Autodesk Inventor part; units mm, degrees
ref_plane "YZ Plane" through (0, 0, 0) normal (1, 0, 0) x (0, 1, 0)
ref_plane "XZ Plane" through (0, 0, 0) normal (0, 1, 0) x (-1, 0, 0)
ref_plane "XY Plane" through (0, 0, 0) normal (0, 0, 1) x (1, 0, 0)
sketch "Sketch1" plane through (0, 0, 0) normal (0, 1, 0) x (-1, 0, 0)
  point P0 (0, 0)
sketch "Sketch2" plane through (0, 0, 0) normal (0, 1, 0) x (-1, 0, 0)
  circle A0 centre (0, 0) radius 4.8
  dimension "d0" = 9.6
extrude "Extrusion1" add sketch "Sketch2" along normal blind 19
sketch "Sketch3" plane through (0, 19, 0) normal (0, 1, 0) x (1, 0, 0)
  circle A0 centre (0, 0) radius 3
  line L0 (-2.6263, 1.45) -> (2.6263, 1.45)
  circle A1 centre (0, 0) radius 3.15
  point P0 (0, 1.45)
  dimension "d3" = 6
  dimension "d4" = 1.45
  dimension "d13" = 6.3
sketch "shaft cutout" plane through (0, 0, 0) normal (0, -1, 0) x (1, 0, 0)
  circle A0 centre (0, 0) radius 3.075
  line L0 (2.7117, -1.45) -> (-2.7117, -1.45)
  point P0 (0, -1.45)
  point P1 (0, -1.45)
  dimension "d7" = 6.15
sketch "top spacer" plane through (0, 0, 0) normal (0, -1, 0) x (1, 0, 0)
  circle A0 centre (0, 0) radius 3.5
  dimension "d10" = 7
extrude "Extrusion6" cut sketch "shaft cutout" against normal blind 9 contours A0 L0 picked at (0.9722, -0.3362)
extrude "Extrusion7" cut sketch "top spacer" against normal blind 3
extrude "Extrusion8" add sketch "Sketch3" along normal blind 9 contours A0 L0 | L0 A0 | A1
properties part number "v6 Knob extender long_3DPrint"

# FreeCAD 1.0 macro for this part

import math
import FreeCAD as App
import Part
import Sketcher

V = App.Vector
Q = App.Units.Quantity

doc = App.newDocument("Part")
body = doc.addObject("PartDesign::Body", "Body")

# Sketch on XZ plane
sketch1 = body.newObject("Sketcher::SketchObject", "Sketch")
sketch1.AttachmentSupport = (doc.getObject("XZ_Plane"), [""])
sketch1.MapMode = "FlatFace"
sketch1.addGeometry(Part.Circle(V(0, 0, 0), V(0, 0, 1), 4.8), False)
sketch1.addConstraint(Sketcher.Constraint("Coincident", 0, 3, -1, 1))
sketch1.addConstraint(Sketcher.Constraint("Diameter", 0, Q("9.6 mm")))
pad1 = body.newObject("PartDesign::Pad", "Pad")
pad1.Profile = sketch1
pad1.Length = 19
pad1.Reversed = True

# Sketch on XZ plane
sketch2 = body.newObject("Sketcher::SketchObject", "Sketch001")
sketch2.AttachmentSupport = (doc.getObject("XZ_Plane"), [""])
sketch2.MapMode = "FlatFace"
sketch2.addGeometry(Part.ArcOfCircle(Part.Circle(V(0, 0, 0), V(0, 0, 1), 3.1), math.radians(-28), math.radians(208)), False)
sketch2.addGeometry(Part.LineSegment(V(2.7, -1.4, 0), V(-2.7, -1.4, 0)), False)
sketch2.addConstraint(Sketcher.Constraint("Coincident", 0, 1, 1, 1))
sketch2.addConstraint(Sketcher.Constraint("Coincident", 1, 2, 0, 2))
sketch2.addConstraint(Sketcher.Constraint("Horizontal", 1))
sketch2.addConstraint(Sketcher.Constraint("Coincident", 0, 3, -1, 1))
sketch2.addConstraint(Sketcher.Constraint("Radius", 0, Q("3.075 mm")))
sketch2.addConstraint(Sketcher.Constraint("DistanceY", 0, 1, -1, 1, Q("1.45 mm")))
pocket1 = body.newObject("PartDesign::Pocket", "Pocket")
pocket1.Profile = sketch2
pocket1.Length = 9

# Sketch on XZ plane
sketch3 = body.newObject("Sketcher::SketchObject", "Sketch002")
sketch3.AttachmentSupport = (doc.getObject("XZ_Plane"), [""])
sketch3.MapMode = "FlatFace"
sketch3.addGeometry(Part.Circle(V(0, 0, 0), V(0, 0, 1), 3.5), False)
sketch3.addConstraint(Sketcher.Constraint("Coincident", 0, 3, -1, 1))
sketch3.addConstraint(Sketcher.Constraint("Diameter", 0, Q("7 mm")))
pocket2 = body.newObject("PartDesign::Pocket", "Pocket001")
pocket2.Profile = sketch3
pocket2.Length = 3

# Sketch on XZ plane
sketch4 = body.newObject("Sketcher::SketchObject", "Sketch003")
sketch4.AttachmentSupport = (doc.getObject("XZ_Plane"), [""])
sketch4.MapMode = "FlatFace"
sketch4.AttachmentOffset = App.Placement(V(0, 0, -19), App.Rotation())
sketch4.addGeometry(Part.Circle(V(0, 0, 0), V(0, 0, 1), 3.1), False)
sketch4.addConstraint(Sketcher.Constraint("Coincident", 0, 3, -1, 1))
sketch4.addConstraint(Sketcher.Constraint("Diameter", 0, Q("6.3 mm")))
pad2 = body.newObject("PartDesign::Pad", "Pad001")
pad2.Profile = sketch4
pad2.Length = 9
pad2.Reversed = True

doc.recompute()
